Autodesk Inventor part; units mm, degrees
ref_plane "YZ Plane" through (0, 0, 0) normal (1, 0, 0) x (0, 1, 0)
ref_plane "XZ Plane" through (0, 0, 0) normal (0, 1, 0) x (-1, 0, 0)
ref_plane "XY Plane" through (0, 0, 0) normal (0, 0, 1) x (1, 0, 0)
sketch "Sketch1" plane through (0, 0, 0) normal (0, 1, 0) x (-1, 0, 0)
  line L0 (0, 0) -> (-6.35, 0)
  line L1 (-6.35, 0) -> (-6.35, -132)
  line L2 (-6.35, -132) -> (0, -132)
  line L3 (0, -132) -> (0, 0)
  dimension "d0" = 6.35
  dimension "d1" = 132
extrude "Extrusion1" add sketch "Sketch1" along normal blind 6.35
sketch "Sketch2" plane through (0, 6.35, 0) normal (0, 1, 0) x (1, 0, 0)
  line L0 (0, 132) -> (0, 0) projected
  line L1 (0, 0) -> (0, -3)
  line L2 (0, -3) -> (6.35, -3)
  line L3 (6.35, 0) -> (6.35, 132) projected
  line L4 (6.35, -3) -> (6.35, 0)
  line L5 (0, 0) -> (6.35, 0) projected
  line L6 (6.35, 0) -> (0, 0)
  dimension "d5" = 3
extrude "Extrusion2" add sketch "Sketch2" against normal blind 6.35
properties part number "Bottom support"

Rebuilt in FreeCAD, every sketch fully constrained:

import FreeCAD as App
import Part
import Sketcher

V = App.Vector


def add_polygon(sketch, points):
    """Adds a closed chain of lines whose ends are joined by coincident constraints."""
    first, n = sketch.GeometryCount, len(points)
    for a, b in zip(points, points[1:] + points[:1]):
        sketch.addGeometry(Part.LineSegment(App.Vector(*a, 0), App.Vector(*b, 0)), False)
    for i in range(n):
        sketch.addConstraint(Sketcher.Constraint("Coincident", first + i, 2, first + (i + 1) % n, 1))

doc = App.newDocument("Part")
params = doc.addObject("Spreadsheet::Sheet", "Params")
for row, (alias, value) in enumerate([
    ("sketch1_height", "132 mm"),
    ("sketch1_width", "6.35 mm"),
    ("pad1_length", "6.35 mm"),
    ("sketch2_height", "3 mm"),
    ("sketch2_width", "6.35 mm"),
    ("pad2_length", "6.35 mm"),
], start=1):
    params.set(f"A{row}", alias)
    params.set(f"B{row}", "=" + value)
    params.setAlias(f"B{row}", alias)

body = doc.addObject("PartDesign::Body", "Body")

sketch1 = body.newObject("Sketcher::SketchObject", "Sketch")
sketch1.AttachmentSupport = (doc.getObject("XZ_Plane"), [""])
sketch1.MapMode = "FlatFace"
add_polygon(sketch1, [(0, -132), (0, 0), (6, 0), (6, -132)])
sketch1.addConstraint([
    Sketcher.Constraint("Vertical", 0),
    Sketcher.Constraint("Horizontal", 1),
    Sketcher.Constraint("Vertical", 2),
    Sketcher.Constraint("Horizontal", 3),
    Sketcher.Constraint("Coincident", 0, 2, -1, 1),
    Sketcher.Constraint("DistanceY", 0, 1, 0, 2, 132.0),
    Sketcher.Constraint("DistanceX", 1, 1, 1, 2, 6.35),
])
sketch1.setExpression("Constraints[9]", "Params.sketch1_height")
sketch1.setExpression("Constraints[10]", "Params.sketch1_width")
pad1 = body.newObject("PartDesign::Pad", "Pad")
pad1.Profile = sketch1
pad1.setExpression("Length", "Params.pad1_length")
pad1.Reversed = True

sketch2 = body.newObject("Sketcher::SketchObject", "Sketch001")
sketch2.AttachmentSupport = (doc.getObject("XZ_Plane"), [""])
sketch2.MapMode = "FlatFace"
sketch2.AttachmentOffset = App.Placement(V(0, 0, -6.35), App.Rotation())
add_polygon(sketch2, [(6.3, 0), (0, 0), (0, 3), (6.3, 3)])
sketch2.addConstraint([
    Sketcher.Constraint("Horizontal", 0),
    Sketcher.Constraint("Vertical", 1),
    Sketcher.Constraint("Horizontal", 2),
    Sketcher.Constraint("Vertical", 3),
    Sketcher.Constraint("Coincident", 0, 2, -1, 1),
    Sketcher.Constraint("DistanceY", 1, 1, 1, 2, 3.0),
    Sketcher.Constraint("DistanceX", 0, 2, 0, 1, 6.35),
])
sketch2.setExpression("Constraints[9]", "Params.sketch2_height")
sketch2.setExpression("Constraints[10]", "Params.sketch2_width")
pad2 = body.newObject("PartDesign::Pad", "Pad001")
pad2.Profile = sketch2
pad2.setExpression("Length", "Params.pad2_length")

doc.recompute()
